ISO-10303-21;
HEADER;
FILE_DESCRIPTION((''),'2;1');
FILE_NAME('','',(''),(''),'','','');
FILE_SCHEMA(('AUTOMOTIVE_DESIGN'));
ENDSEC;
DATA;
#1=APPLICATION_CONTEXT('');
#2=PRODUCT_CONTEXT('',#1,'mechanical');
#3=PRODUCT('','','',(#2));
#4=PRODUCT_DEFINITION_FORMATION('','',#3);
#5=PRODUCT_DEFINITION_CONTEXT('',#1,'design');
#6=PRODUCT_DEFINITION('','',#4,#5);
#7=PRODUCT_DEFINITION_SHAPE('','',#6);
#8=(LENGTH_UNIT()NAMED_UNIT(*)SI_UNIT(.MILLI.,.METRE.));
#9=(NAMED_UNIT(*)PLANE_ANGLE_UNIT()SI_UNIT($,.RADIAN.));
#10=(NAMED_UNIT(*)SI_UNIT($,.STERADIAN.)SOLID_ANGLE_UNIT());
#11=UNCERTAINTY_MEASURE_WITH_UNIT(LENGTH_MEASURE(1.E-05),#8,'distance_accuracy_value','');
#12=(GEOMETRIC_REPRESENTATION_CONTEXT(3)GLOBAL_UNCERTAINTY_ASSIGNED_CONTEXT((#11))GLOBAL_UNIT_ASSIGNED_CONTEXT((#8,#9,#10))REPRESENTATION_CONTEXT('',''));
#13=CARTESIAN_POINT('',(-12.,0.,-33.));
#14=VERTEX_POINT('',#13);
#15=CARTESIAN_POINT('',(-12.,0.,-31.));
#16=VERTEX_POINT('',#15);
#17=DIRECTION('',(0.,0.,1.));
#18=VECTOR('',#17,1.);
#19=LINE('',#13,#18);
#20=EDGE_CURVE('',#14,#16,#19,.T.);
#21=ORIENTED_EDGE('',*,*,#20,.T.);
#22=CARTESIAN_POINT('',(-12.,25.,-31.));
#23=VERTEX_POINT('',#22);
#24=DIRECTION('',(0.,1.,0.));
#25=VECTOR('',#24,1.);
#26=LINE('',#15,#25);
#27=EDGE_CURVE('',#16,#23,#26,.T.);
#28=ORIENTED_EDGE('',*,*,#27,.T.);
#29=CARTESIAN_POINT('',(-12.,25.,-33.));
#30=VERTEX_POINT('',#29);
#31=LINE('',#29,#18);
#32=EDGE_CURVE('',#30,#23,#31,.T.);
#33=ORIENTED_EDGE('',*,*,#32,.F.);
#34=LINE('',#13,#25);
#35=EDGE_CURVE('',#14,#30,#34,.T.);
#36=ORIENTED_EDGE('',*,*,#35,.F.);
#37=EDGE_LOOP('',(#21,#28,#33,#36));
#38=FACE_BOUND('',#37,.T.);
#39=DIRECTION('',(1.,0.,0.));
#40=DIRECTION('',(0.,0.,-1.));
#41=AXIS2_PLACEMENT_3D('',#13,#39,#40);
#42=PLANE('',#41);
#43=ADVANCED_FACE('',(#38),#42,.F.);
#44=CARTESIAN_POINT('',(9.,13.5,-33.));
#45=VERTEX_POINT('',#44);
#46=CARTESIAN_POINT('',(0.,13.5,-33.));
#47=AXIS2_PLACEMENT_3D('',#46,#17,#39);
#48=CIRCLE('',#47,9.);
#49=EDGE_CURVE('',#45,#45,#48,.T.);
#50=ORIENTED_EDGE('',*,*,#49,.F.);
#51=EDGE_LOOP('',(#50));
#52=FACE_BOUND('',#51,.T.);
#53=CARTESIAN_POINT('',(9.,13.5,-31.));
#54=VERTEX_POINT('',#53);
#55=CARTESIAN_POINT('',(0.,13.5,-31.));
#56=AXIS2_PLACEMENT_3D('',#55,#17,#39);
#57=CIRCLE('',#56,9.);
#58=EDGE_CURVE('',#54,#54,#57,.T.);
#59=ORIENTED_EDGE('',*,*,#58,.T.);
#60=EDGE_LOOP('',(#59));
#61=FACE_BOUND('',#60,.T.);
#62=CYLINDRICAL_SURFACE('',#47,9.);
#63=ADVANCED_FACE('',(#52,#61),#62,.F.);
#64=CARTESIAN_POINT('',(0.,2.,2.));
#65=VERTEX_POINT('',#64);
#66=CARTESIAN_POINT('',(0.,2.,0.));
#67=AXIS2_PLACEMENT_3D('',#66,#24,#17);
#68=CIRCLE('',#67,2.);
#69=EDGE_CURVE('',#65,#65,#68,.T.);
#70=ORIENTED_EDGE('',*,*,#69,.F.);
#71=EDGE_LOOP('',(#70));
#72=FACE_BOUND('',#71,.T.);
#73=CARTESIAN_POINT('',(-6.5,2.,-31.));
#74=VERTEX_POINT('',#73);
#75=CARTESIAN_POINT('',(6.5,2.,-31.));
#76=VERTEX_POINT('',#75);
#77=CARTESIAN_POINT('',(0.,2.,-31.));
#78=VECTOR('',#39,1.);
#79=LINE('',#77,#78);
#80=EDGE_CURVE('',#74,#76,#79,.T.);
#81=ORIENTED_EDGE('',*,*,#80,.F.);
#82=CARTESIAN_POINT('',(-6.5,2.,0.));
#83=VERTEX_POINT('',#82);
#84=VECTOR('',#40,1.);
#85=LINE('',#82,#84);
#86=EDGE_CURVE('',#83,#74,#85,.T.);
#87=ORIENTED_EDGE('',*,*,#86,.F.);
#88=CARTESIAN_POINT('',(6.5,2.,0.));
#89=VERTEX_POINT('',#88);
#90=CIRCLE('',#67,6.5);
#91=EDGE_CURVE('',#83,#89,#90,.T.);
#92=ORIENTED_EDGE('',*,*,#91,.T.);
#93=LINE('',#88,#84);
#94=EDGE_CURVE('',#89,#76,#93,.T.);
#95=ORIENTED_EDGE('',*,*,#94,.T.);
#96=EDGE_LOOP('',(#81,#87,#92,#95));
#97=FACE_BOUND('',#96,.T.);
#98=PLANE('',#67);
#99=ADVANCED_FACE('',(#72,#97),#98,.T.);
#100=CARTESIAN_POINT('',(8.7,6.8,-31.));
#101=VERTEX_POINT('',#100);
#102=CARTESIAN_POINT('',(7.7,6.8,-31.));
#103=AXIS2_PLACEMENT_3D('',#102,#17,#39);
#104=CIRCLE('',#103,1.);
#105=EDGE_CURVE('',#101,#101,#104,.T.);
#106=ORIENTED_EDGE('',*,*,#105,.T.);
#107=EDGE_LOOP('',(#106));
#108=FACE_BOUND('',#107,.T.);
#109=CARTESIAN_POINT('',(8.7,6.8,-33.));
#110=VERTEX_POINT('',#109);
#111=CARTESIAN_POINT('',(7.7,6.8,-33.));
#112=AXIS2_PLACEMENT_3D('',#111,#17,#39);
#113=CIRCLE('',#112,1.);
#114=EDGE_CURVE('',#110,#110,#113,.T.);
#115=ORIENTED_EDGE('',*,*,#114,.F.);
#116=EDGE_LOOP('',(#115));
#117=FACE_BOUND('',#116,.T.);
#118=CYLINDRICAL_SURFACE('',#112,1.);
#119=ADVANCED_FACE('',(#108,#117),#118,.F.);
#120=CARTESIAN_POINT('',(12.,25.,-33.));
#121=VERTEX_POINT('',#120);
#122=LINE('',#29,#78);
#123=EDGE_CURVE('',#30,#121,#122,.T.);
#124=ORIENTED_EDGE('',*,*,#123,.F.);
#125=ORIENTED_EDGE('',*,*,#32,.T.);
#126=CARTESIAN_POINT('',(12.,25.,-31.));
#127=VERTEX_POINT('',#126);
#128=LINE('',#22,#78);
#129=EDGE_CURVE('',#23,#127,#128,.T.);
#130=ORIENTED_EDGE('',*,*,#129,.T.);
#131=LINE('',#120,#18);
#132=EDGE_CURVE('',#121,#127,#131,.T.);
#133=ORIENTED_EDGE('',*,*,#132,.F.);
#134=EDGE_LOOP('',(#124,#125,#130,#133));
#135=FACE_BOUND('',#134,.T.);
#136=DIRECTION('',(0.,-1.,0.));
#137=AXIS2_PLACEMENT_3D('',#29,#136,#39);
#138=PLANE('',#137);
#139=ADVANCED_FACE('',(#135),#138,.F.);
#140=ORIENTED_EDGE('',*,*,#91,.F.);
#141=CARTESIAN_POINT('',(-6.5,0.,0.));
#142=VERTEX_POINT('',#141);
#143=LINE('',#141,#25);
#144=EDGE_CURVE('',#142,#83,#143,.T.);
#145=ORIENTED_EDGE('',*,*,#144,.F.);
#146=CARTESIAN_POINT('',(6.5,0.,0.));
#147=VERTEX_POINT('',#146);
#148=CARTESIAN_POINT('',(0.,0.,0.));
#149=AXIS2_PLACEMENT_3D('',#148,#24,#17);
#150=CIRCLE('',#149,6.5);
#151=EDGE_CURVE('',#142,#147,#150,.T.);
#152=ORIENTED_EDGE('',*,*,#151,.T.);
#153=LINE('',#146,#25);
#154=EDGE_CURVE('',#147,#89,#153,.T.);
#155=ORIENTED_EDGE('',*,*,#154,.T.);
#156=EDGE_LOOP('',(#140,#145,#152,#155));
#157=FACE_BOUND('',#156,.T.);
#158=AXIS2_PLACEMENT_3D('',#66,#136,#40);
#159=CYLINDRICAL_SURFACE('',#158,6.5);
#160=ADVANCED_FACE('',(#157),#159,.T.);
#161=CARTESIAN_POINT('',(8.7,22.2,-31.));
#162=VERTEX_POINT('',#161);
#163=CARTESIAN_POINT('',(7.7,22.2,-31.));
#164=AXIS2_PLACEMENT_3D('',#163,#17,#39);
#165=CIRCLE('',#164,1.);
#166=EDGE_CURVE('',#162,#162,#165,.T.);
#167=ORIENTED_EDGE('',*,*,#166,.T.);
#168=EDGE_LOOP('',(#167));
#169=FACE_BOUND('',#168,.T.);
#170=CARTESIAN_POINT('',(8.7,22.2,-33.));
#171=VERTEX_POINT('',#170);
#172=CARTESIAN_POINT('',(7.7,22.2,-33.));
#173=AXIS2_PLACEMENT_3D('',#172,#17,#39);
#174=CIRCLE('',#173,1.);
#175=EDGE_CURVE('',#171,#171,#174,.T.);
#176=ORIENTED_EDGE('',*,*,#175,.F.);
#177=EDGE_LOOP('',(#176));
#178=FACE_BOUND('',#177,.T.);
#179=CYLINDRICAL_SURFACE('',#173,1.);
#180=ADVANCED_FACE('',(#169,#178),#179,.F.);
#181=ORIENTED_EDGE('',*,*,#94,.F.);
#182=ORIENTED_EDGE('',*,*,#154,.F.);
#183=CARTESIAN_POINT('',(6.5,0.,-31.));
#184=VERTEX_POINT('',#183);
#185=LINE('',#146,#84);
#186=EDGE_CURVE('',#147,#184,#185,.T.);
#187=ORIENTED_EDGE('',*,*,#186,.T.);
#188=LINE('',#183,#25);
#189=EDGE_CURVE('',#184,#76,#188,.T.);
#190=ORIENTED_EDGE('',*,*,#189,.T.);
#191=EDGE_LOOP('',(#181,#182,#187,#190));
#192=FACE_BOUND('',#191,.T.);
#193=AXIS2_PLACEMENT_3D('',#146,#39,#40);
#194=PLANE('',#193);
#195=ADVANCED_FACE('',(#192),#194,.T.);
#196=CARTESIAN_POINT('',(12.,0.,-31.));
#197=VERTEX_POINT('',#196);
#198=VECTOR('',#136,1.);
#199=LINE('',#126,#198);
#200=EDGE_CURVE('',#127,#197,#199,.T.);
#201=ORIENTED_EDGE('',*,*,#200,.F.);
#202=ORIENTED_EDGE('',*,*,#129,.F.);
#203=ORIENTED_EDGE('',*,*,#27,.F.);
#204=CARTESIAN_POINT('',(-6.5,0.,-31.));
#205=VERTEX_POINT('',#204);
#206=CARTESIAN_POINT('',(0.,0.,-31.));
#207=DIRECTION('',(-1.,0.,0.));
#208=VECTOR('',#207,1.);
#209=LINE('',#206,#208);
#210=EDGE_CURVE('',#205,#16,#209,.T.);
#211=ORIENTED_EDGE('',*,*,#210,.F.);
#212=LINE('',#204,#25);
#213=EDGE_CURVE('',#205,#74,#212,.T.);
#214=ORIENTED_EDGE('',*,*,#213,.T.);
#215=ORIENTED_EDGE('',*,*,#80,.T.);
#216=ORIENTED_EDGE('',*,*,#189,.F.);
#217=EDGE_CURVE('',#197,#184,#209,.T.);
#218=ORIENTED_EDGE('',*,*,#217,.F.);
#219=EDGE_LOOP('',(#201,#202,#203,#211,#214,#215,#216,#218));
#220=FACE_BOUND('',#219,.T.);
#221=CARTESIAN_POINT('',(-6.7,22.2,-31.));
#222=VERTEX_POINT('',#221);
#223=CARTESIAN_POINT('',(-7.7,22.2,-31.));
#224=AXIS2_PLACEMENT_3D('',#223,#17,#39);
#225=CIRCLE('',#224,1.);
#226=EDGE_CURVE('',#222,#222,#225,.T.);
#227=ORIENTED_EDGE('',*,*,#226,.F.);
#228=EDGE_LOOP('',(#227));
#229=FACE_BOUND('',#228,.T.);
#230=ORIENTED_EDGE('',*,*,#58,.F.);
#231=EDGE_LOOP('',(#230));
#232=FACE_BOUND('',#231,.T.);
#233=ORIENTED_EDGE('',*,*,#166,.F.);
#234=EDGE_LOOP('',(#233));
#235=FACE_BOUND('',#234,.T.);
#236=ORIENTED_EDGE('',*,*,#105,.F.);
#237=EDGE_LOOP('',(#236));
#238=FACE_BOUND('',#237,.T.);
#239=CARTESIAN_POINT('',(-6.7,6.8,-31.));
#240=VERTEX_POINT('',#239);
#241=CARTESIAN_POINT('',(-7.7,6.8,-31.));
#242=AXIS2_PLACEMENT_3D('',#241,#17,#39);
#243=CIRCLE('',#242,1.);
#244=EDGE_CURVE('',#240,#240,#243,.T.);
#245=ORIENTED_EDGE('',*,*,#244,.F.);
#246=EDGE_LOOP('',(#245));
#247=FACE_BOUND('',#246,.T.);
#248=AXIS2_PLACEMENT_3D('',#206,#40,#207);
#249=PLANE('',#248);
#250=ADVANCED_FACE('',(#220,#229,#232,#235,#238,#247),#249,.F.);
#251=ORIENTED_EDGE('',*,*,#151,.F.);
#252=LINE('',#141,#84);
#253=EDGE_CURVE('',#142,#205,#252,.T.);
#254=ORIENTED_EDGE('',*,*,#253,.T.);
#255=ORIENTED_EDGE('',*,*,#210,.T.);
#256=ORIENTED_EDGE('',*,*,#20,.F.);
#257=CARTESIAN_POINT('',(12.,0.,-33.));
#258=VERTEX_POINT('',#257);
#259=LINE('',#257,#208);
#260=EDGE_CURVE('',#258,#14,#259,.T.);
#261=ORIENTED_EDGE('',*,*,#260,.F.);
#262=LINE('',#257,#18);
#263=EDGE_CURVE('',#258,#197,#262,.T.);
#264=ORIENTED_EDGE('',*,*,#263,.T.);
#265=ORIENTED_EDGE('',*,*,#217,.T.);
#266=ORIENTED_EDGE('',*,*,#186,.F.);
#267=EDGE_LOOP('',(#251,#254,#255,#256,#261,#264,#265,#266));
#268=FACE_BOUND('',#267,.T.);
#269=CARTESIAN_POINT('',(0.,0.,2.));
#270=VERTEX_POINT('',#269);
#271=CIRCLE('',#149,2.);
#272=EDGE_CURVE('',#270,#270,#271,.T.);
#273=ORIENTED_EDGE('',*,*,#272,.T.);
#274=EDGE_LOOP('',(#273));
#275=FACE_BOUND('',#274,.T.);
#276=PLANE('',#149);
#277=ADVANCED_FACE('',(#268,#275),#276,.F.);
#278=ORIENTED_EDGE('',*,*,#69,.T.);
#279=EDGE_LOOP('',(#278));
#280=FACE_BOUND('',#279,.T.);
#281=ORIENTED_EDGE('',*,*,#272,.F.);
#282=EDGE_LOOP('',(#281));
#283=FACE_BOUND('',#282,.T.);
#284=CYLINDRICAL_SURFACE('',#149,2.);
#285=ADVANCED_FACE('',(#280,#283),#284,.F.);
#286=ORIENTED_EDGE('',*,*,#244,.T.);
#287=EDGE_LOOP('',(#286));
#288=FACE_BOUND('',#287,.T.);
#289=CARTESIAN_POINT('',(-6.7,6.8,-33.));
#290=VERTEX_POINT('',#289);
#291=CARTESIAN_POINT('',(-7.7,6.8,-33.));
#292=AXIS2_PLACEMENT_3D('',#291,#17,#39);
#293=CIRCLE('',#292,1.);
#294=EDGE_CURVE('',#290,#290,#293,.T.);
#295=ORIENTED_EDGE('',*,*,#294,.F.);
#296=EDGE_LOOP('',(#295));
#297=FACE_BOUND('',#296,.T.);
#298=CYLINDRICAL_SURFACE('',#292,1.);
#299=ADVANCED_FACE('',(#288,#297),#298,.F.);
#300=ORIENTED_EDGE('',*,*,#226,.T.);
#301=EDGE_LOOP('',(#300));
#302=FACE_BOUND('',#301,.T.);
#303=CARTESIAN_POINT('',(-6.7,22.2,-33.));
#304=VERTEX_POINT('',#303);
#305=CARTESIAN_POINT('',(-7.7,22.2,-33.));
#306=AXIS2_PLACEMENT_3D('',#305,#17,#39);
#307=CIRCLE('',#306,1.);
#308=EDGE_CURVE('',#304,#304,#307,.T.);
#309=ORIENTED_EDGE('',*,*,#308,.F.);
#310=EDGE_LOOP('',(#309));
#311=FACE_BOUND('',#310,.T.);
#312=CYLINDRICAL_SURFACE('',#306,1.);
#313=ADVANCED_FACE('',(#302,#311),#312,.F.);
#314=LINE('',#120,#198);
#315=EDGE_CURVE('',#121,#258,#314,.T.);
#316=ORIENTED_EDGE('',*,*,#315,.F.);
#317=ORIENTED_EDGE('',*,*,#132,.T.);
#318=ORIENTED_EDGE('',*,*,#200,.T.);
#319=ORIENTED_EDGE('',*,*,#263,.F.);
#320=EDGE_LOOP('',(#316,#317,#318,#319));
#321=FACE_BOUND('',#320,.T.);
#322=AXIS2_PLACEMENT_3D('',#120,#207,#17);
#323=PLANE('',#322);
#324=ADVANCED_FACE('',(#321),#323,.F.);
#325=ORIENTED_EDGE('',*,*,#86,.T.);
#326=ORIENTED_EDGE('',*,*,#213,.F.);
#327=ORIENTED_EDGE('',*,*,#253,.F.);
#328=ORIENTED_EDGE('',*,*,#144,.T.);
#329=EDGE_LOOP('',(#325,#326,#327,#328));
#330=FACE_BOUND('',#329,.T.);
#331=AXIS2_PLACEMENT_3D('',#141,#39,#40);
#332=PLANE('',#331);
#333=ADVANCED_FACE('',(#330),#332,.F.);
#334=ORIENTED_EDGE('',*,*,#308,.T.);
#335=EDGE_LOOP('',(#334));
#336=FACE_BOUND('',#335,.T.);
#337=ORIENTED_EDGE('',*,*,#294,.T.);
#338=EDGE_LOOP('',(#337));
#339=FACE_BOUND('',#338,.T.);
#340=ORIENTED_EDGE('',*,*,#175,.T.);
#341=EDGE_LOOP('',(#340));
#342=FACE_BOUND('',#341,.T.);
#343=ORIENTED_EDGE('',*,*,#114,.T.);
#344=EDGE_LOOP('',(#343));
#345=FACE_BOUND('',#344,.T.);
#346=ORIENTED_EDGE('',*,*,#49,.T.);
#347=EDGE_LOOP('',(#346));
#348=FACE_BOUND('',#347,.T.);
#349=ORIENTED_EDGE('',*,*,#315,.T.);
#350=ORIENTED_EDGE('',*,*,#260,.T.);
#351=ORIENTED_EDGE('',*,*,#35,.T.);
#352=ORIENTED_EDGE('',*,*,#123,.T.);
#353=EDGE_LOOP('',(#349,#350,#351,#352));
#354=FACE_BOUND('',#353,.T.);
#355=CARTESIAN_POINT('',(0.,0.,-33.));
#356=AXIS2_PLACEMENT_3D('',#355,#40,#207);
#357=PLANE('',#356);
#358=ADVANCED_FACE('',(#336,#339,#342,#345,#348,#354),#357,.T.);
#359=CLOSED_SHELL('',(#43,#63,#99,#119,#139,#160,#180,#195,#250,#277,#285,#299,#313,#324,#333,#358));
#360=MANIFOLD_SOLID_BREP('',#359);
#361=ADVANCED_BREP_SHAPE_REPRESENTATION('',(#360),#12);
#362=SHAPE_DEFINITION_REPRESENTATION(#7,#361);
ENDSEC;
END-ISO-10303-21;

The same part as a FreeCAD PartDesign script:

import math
import FreeCAD as App
import Part
import Sketcher
from FreeCAD import Vector
Q = App.Units.Quantity

doc = App.newDocument("Part")
params = doc.addObject("Spreadsheet::Sheet", "Params")
for row, (alias, value) in enumerate([
    ("sketch1_diameter", "13 mm"),
    ("pad1_length", "2 mm"),
    ("sketch2_diameter", "4 mm"),
    ("sketch3_radius", "6.5 mm"),
    ("sketch3_height", "31 mm"),
    ("pad2_length", "2 mm"),
    ("sketch4_width", "24 mm"),
    ("sketch4_height", "25 mm"),
    ("pad3_length", "2 mm"),
    ("sketch5_diameter", "18 mm"),
    ("sketch5_diameter2", "2 mm"),
    ("pocket2_length", "2 mm"),
], start=1):
    params.set(f"A{row}", alias)
    params.set(f"B{row}", "=" + value)
    params.setAlias(f"B{row}", alias)

body = doc.addObject("PartDesign::Body", "Body")

sketch1 = doc.addObject("Sketcher::SketchObject", "Sketch")
body.addObject(sketch1)
sketch1.AttachmentSupport = (doc.XZ_Plane, [""])
sketch1.MapMode = "FlatFace"
sketch1.addGeometry(Part.Circle(Vector(0, 0, 0), Vector(0, 0, 1), 6), False)
sketch1.addConstraint(Sketcher.Constraint("Coincident", 0, 3, -1, 1))
sketch1.addConstraint(Sketcher.Constraint("Diameter", 0, Q("13 mm")))
sketch1.setExpression("Constraints[1]", "Params.sketch1_diameter")
pad1 = doc.addObject("PartDesign::Pad", "Pad")
body.addObject(pad1)
pad1.Profile = sketch1
pad1.setExpression("Length", "Params.pad1_length")
pad1.Reversed = True

sketch2 = doc.addObject("Sketcher::SketchObject", "Sketch001")
body.addObject(sketch2)
sketch2.AttachmentSupport = (doc.XZ_Plane, [""])
sketch2.MapMode = "FlatFace"
sketch2.AttachmentOffset = App.Placement(Vector(0, 0, -2), App.Rotation())
sketch2.addGeometry(Part.Circle(Vector(0, 0, 0), Vector(0, 0, 1), 2), False)
sketch2.addConstraint(Sketcher.Constraint("Coincident", 0, 3, -1, 1))
sketch2.addConstraint(Sketcher.Constraint("Diameter", 0, Q("4 mm")))
sketch2.setExpression("Constraints[1]", "Params.sketch2_diameter")
pocket1 = doc.addObject("PartDesign::Pocket", "Pocket")
body.addObject(pocket1)
pocket1.Profile = sketch2
pocket1.Type = "ThroughAll"
pocket1.Reversed = True

sketch3 = doc.addObject("Sketcher::SketchObject", "Sketch002")
body.addObject(sketch3)
sketch3.AttachmentSupport = (doc.XZ_Plane, [""])
sketch3.MapMode = "FlatFace"
sketch3.addGeometry(Part.LineSegment(Vector(6, 0, 0), Vector(6, -31, 0)), False)
sketch3.addGeometry(Part.LineSegment(Vector(6, -31, 0), Vector(-6, -31, 0)), False)
sketch3.addGeometry(Part.LineSegment(Vector(-6, -31, 0), Vector(-6, 0, 0)), False)
sketch3.addGeometry(Part.ArcOfCircle(Part.Circle(Vector(0, 0, 0), Vector(0, 0, 1), 6), math.radians(180), math.radians(360)), False)
sketch3.addConstraint(Sketcher.Constraint("Coincident", 0, 2, 1, 1))
sketch3.addConstraint(Sketcher.Constraint("Coincident", 1, 2, 2, 1))
sketch3.addConstraint(Sketcher.Constraint("Tangent", 2, 2, 3, 1))
sketch3.addConstraint(Sketcher.Constraint("Tangent", 3, 2, 0, 1))
sketch3.addConstraint(Sketcher.Constraint("Vertical", 0))
sketch3.addConstraint(Sketcher.Constraint("Horizontal", 1))
sketch3.addConstraint(Sketcher.Constraint("Vertical", 2))
sketch3.addConstraint(Sketcher.Constraint("Coincident", 3, 3, -1, 1))
sketch3.addConstraint(Sketcher.Constraint("Radius", 3, Q("6.5 mm")))
sketch3.addConstraint(Sketcher.Constraint("DistanceY", 0, 2, 0, 1, Q("31 mm")))
sketch3.setExpression("Constraints[8]", "Params.sketch3_radius")
sketch3.setExpression("Constraints[9]", "Params.sketch3_height")
pad2 = doc.addObject("PartDesign::Pad", "Pad001")
body.addObject(pad2)
pad2.Profile = sketch3
pad2.setExpression("Length", "Params.pad2_length")
pad2.Reversed = True

sketch4 = doc.addObject("Sketcher::SketchObject", "Sketch003")
body.addObject(sketch4)
sketch4.AttachmentSupport = (doc.XY_Plane, [""])
sketch4.MapMode = "FlatFace"
sketch4.AttachmentOffset = App.Placement(Vector(0, 0, -31), App.Rotation())
sketch4.addGeometry(Part.LineSegment(Vector(-12, 0, 0), Vector(-12, 25, 0)), False)
sketch4.addGeometry(Part.LineSegment(Vector(-12, 25, 0), Vector(12, 25, 0)), False)
sketch4.addGeometry(Part.LineSegment(Vector(12, 25, 0), Vector(12, 0, 0)), False)
sketch4.addGeometry(Part.LineSegment(Vector(12, 0, 0), Vector(-12, 0, 0)), False)
sketch4.addConstraint(Sketcher.Constraint("Coincident", 0, 2, 1, 1))
sketch4.addConstraint(Sketcher.Constraint("Coincident", 1, 2, 2, 1))
sketch4.addConstraint(Sketcher.Constraint("Coincident", 2, 2, 3, 1))
sketch4.addConstraint(Sketcher.Constraint("Coincident", 3, 2, 0, 1))
sketch4.addConstraint(Sketcher.Constraint("Vertical", 0))
sketch4.addConstraint(Sketcher.Constraint("Horizontal", 1))
sketch4.addConstraint(Sketcher.Constraint("Vertical", 2))
sketch4.addConstraint(Sketcher.Constraint("Horizontal", 3))
sketch4.addConstraint(Sketcher.Constraint("Symmetric", 2, 2, 3, 2, -1, 1))
sketch4.addConstraint(Sketcher.Constraint("DistanceX", 1, 1, 1, 2, Q("24 mm")))
sketch4.addConstraint(Sketcher.Constraint("DistanceY", 0, 1, 0, 2, Q("25 mm")))
sketch4.setExpression("Constraints[9]", "Params.sketch4_width")
sketch4.setExpression("Constraints[10]", "Params.sketch4_height")
pad3 = doc.addObject("PartDesign::Pad", "Pad002")
body.addObject(pad3)
pad3.Profile = sketch4
pad3.setExpression("Length", "Params.pad3_length")
pad3.Reversed = True

sketch5 = doc.addObject("Sketcher::SketchObject", "Sketch004")
body.addObject(sketch5)
sketch5.AttachmentSupport = (doc.XY_Plane, [""])
sketch5.MapMode = "FlatFace"
sketch5.AttachmentOffset = App.Placement(Vector(0, 0, -31), App.Rotation())
sketch5.addGeometry(Part.Circle(Vector(0, 13.5, 0), Vector(0, 0, 1), 9), False)
sketch5.addGeometry(Part.Circle(Vector(7.7, 22.2, 0), Vector(0, 0, 1), 1), False)
sketch5.addGeometry(Part.Circle(Vector(-7.7, 22.2, 0), Vector(0, 0, 1), 1), False)
sketch5.addGeometry(Part.Circle(Vector(-7.7, 6.8, 0), Vector(0, 0, 1), 1), False)
sketch5.addGeometry(Part.Circle(Vector(7.7, 6.8, 0), Vector(0, 0, 1), 1), False)
sketch5.addConstraint(Sketcher.Constraint("Equal", 1, 2))
sketch5.addConstraint(Sketcher.Constraint("Equal", 2, 3))
sketch5.addConstraint(Sketcher.Constraint("Equal", 3, 4))
sketch5.addConstraint(Sketcher.Constraint("Symmetric", 1, 3, 2, 3, -2))
sketch5.addConstraint(Sketcher.Constraint("Symmetric", 3, 3, 4, 3, -2))
sketch5.addConstraint(Sketcher.Constraint("PointOnObject", 0, 3, -2))
sketch5.addConstraint(Sketcher.Constraint("Vertical", 2, 3, 3, 3))
sketch5.addConstraint(Sketcher.Constraint("Diameter", 0, Q("18 mm")))
sketch5.addConstraint(Sketcher.Constraint("Diameter", 1, Q("2 mm")))
sketch5.addConstraint(Sketcher.Constraint("DistanceY", -1, 1, 0, 3, Q("13.5 mm")))
sketch5.addConstraint(Sketcher.Constraint("DistanceX", -1, 1, 1, 3, Q("7.7 mm")))
sketch5.addConstraint(Sketcher.Constraint("DistanceY", -1, 1, 1, 3, Q("22.2 mm")))
sketch5.addConstraint(Sketcher.Constraint("DistanceY", -1, 1, 3, 3, Q("6.8 mm")))
sketch5.setExpression("Constraints[7]", "Params.sketch5_diameter")
sketch5.setExpression("Constraints[8]", "Params.sketch5_diameter2")
pocket2 = doc.addObject("PartDesign::Pocket", "Pocket001")
body.addObject(pocket2)
pocket2.Profile = sketch5
pocket2.setExpression("Length", "Params.pocket2_length")

doc.recompute()
